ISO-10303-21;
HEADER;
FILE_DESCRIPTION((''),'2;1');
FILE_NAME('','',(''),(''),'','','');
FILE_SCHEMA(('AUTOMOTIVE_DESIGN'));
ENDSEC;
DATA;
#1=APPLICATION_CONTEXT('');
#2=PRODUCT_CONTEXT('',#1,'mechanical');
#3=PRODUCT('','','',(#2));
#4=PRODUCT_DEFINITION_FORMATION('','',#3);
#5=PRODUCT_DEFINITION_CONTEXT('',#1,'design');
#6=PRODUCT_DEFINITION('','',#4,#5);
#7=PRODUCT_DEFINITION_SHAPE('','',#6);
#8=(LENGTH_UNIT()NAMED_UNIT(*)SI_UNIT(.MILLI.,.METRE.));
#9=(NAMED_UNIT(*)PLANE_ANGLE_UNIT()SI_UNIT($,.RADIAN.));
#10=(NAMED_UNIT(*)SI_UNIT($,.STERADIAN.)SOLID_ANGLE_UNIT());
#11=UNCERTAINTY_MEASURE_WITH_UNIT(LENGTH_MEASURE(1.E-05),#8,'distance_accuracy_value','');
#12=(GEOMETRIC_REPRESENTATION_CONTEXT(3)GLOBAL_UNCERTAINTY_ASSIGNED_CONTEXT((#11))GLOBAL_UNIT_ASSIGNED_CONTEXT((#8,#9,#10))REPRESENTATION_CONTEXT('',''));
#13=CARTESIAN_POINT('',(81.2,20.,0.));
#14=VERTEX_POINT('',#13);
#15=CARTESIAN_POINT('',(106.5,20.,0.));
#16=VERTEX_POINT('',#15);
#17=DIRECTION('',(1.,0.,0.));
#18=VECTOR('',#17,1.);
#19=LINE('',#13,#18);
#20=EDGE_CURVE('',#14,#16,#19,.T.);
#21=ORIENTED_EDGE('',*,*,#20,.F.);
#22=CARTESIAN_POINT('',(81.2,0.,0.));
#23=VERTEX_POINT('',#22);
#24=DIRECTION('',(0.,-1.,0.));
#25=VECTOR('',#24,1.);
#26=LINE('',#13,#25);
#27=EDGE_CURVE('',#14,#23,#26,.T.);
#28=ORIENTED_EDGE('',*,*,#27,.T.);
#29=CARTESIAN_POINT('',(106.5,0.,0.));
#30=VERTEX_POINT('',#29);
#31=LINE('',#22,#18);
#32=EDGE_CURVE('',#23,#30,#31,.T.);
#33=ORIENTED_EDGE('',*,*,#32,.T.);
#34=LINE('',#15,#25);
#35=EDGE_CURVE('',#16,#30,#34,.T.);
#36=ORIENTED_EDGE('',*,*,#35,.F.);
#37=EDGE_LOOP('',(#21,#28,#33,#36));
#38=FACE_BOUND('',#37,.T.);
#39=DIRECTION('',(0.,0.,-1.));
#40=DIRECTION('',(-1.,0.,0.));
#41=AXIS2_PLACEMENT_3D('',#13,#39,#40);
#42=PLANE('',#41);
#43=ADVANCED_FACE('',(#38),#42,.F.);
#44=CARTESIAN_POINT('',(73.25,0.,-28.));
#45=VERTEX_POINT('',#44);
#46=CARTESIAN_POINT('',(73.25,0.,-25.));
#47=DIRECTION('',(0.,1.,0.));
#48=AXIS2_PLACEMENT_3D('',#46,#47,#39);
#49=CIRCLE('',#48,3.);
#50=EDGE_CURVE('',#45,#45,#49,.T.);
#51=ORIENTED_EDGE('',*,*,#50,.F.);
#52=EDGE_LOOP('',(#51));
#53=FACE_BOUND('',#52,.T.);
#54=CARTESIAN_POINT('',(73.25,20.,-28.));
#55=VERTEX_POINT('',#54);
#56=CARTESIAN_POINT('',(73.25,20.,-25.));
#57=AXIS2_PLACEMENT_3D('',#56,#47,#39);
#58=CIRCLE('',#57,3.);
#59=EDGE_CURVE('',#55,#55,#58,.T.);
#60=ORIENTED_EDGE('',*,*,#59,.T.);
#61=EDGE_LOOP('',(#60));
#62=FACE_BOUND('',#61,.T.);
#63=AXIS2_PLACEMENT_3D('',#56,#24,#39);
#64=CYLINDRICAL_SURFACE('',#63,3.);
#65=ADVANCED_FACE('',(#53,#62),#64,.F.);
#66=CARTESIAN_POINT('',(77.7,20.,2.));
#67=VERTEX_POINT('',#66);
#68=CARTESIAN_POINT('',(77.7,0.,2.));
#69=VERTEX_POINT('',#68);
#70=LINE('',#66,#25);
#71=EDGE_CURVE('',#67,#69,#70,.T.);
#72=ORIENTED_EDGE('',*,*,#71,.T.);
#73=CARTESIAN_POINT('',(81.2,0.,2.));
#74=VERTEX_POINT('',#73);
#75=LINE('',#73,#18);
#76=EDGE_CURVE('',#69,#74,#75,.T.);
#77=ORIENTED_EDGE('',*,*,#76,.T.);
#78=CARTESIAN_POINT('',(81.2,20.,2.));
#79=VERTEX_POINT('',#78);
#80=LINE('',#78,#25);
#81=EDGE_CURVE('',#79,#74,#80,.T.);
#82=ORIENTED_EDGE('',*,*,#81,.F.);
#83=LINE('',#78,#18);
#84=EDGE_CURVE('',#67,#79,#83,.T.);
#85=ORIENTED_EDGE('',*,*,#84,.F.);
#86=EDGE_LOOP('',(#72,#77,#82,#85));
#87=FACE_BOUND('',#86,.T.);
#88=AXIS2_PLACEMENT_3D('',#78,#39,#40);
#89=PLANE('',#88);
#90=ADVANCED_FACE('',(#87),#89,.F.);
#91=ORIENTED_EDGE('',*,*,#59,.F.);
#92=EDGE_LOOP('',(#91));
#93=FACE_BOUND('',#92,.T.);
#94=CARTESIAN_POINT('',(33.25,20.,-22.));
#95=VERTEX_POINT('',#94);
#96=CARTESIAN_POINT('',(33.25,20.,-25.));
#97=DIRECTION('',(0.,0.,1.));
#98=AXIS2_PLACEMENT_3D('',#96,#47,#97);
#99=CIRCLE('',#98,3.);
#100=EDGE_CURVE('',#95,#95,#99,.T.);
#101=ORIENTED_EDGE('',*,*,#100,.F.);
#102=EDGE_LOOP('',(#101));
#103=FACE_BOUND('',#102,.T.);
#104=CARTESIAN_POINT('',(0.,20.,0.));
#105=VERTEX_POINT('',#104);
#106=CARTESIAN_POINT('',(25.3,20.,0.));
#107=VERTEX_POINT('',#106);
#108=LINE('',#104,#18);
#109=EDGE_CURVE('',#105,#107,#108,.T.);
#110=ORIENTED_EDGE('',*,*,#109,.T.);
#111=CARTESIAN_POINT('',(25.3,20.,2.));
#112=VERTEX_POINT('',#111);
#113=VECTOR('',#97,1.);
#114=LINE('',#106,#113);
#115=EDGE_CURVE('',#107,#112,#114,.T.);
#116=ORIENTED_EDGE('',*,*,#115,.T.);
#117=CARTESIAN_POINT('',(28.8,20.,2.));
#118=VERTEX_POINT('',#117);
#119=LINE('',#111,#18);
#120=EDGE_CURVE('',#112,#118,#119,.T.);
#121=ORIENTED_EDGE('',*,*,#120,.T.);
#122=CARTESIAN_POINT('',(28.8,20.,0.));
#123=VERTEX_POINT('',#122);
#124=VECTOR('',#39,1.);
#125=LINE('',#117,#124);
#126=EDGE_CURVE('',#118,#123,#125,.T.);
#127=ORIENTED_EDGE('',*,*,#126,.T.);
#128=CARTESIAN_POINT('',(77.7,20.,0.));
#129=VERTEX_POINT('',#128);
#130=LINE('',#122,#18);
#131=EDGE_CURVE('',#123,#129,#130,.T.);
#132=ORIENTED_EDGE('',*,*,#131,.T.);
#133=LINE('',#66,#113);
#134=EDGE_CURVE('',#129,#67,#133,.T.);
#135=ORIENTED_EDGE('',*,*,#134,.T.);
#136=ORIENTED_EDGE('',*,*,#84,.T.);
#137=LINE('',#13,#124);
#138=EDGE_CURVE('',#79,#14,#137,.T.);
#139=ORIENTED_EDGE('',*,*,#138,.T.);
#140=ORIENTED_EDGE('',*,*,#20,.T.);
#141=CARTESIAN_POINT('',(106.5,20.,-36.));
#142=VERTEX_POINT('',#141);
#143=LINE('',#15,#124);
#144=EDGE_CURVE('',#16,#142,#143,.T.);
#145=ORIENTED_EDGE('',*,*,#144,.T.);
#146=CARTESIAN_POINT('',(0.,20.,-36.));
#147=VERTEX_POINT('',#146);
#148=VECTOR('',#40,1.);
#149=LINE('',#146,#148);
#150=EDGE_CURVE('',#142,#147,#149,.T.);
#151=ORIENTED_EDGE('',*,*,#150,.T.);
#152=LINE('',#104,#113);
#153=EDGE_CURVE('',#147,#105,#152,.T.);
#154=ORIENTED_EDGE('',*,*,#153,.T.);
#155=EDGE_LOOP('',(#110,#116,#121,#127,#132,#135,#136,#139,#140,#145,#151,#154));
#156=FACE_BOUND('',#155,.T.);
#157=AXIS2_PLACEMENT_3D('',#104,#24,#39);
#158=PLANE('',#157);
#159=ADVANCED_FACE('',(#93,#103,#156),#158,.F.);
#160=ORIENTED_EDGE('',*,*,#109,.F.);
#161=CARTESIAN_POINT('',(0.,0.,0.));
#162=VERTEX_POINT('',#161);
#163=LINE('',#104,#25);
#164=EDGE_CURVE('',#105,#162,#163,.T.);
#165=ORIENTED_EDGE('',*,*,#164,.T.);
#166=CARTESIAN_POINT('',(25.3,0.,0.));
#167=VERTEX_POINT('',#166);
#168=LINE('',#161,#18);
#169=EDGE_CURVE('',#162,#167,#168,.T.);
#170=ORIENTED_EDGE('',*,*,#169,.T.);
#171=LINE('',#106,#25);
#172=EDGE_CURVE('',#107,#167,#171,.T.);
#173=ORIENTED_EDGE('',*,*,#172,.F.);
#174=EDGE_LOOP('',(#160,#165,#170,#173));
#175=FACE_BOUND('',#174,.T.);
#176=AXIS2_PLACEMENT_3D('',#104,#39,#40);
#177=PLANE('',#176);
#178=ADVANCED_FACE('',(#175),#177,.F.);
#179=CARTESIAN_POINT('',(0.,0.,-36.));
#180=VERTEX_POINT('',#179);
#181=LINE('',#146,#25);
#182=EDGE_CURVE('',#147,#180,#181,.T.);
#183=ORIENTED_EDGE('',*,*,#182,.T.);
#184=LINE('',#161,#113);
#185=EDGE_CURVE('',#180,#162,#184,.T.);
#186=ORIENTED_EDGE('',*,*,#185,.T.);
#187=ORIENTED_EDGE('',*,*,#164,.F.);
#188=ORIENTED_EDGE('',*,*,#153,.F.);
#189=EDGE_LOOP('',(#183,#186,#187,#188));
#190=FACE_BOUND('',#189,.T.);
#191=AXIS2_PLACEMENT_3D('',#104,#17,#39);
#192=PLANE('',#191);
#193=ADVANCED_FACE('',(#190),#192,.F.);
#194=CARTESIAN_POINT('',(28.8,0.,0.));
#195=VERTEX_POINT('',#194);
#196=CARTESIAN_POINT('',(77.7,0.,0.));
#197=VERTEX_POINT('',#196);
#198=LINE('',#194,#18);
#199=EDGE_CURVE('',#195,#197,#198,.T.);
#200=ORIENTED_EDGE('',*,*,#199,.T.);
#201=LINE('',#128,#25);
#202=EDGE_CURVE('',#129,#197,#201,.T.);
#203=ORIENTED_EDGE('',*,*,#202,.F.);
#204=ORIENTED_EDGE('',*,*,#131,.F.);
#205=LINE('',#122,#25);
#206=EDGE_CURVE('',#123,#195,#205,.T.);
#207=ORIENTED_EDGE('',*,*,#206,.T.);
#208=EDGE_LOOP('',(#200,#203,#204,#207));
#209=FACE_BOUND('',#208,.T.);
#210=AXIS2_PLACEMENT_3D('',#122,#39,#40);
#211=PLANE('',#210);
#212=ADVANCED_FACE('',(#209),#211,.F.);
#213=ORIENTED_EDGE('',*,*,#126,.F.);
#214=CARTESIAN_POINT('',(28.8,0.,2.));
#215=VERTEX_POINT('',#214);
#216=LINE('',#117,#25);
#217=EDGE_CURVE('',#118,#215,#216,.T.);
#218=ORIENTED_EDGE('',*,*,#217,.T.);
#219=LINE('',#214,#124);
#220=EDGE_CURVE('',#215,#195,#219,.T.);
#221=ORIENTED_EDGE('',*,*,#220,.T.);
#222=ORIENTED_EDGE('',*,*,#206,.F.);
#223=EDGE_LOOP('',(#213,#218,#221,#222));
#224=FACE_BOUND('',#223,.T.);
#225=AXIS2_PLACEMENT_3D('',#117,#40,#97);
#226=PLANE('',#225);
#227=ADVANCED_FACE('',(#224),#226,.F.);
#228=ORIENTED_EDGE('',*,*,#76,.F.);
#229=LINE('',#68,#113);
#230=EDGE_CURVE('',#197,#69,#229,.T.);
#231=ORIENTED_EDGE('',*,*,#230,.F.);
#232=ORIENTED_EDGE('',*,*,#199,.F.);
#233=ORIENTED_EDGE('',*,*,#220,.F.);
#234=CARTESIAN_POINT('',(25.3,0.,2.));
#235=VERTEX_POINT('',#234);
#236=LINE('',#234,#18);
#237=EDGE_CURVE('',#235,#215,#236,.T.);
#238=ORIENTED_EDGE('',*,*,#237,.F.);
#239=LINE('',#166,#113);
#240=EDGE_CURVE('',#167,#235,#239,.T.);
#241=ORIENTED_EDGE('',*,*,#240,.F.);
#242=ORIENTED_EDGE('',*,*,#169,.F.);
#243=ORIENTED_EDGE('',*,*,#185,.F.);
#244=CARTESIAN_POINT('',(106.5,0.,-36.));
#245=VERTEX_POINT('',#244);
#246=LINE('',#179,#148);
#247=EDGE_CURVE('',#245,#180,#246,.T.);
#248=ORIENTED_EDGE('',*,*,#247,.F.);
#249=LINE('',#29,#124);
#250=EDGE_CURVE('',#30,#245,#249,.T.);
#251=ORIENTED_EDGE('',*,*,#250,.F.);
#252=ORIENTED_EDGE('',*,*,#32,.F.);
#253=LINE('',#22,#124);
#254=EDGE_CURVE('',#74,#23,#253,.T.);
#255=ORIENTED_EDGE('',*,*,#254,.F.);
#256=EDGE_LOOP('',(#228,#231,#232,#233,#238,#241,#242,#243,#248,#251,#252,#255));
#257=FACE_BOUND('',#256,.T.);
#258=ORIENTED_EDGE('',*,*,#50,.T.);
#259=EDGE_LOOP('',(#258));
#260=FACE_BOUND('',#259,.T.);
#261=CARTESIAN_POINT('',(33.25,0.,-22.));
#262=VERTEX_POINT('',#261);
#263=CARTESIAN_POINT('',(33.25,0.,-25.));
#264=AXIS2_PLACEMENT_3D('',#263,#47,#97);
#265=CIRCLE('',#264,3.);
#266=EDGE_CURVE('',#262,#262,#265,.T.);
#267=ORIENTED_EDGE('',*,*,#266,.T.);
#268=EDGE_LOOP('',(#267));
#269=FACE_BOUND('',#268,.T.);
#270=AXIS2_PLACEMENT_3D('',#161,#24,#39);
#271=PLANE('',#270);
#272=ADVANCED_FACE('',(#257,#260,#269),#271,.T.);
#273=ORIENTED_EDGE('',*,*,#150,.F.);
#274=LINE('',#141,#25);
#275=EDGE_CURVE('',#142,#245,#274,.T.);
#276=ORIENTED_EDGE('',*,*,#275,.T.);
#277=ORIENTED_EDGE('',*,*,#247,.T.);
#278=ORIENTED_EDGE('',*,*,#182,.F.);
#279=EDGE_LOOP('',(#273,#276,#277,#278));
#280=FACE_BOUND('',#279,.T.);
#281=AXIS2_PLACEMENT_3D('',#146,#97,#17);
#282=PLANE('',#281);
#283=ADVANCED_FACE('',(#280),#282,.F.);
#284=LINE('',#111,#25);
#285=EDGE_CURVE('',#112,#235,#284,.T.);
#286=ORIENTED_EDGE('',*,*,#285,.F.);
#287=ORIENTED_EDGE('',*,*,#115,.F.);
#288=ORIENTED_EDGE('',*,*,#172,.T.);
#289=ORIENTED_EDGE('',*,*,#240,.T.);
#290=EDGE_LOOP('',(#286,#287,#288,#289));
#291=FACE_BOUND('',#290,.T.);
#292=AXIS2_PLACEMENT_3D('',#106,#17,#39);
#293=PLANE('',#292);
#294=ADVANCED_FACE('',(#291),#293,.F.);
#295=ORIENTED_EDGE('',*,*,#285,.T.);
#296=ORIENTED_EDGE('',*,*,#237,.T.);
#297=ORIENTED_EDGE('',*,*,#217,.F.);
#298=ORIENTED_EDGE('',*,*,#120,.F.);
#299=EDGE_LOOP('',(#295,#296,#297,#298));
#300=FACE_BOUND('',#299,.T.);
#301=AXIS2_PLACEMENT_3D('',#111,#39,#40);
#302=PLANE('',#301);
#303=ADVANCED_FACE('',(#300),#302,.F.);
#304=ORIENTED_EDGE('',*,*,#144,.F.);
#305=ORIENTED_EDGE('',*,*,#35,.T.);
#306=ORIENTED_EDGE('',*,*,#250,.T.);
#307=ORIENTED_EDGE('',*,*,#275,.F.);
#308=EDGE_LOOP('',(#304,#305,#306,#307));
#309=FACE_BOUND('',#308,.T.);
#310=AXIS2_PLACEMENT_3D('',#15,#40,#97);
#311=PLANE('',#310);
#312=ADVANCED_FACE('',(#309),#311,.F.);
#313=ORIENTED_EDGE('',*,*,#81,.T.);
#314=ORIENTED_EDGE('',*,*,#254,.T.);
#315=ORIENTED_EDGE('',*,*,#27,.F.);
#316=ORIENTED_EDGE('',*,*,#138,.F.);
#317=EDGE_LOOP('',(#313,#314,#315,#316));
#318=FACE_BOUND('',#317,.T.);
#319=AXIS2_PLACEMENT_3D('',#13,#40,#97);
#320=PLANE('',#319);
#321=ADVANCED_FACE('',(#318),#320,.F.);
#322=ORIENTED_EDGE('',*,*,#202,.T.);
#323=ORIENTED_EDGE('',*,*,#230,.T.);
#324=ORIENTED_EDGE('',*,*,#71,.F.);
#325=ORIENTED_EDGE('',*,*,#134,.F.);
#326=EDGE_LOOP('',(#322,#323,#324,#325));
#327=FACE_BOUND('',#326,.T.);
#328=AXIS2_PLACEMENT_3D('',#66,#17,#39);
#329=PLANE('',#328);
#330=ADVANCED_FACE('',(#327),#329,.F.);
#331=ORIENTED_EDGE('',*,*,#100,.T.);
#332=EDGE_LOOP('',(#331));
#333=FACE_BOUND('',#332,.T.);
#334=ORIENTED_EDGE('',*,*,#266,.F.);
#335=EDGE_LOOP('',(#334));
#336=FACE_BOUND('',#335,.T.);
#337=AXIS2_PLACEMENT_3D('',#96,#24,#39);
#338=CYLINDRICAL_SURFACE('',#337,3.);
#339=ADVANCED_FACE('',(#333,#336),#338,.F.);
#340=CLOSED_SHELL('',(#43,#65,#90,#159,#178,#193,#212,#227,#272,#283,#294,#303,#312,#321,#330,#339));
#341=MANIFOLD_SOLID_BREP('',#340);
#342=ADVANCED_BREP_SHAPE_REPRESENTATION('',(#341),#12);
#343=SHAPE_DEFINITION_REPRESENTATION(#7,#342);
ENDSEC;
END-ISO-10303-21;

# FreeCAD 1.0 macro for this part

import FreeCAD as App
import Part
import Sketcher
from FreeCAD import Vector

doc = App.newDocument("Part")
body = doc.addObject("PartDesign::Body", "Body")

# Sketch on XZ plane
sketch1 = body.newObject("Sketcher::SketchObject", "Sketch")
sketch1.AttachmentSupport = (doc.getObject("XZ_Plane"), [""])
sketch1.MapMode = "FlatFace"
sketch1.addGeometry([
    Part.LineSegment(Vector(0, 0, 0), Vector(25.3, 0, 0)),  # 0
    Part.LineSegment(Vector(25.3, 0, 0), Vector(25.3, 2, 0)),  # 1
    Part.LineSegment(Vector(25.3, 2, 0), Vector(28.8, 2, 0)),  # 2
    Part.LineSegment(Vector(28.8, 2, 0), Vector(28.8, 0, 0)),  # 3
    Part.LineSegment(Vector(28.8, 0, 0), Vector(77.7, 0, 0)),  # 4
    Part.LineSegment(Vector(77.7, 0, 0), Vector(77.7, 2, 0)),  # 5
    Part.LineSegment(Vector(77.7, 2, 0), Vector(81.2, 2, 0)),  # 6
    Part.LineSegment(Vector(81.2, 2, 0), Vector(81.2, 0, 0)),  # 7
    Part.LineSegment(Vector(81.2, 0, 0), Vector(106.5, 0, 0)),  # 8
    Part.LineSegment(Vector(106.5, 0, 0), Vector(106.5, -36, 0)),  # 9
    Part.LineSegment(Vector(106.5, -36, 0), Vector(0, -36, 0)),  # 10
    Part.LineSegment(Vector(0, -36, 0), Vector(0, 0, 0)),  # 11
    Part.Circle(Vector(33.25, -25, 0), Vector(0, 0, 1), 3),  # 12
    Part.Circle(Vector(73.25, -25, 0), Vector(0, 0, 1), 3),  # 13
], False)
sketch1.addConstraint([
    Sketcher.Constraint("Coincident", 0, 2, 1, 1),
    Sketcher.Constraint("Coincident", 1, 2, 2, 1),
    Sketcher.Constraint("Coincident", 2, 2, 3, 1),
    Sketcher.Constraint("Coincident", 3, 2, 4, 1),
    Sketcher.Constraint("Coincident", 4, 2, 5, 1),
    Sketcher.Constraint("Coincident", 5, 2, 6, 1),
    Sketcher.Constraint("Coincident", 6, 2, 7, 1),
    Sketcher.Constraint("Coincident", 7, 2, 8, 1),
    Sketcher.Constraint("Coincident", 8, 2, 9, 1),
    Sketcher.Constraint("Coincident", 9, 2, 10, 1),
    Sketcher.Constraint("Coincident", 10, 2, 11, 1),
    Sketcher.Constraint("Coincident", 11, 2, 0, 1),
    Sketcher.Constraint("Horizontal", 0),
    Sketcher.Constraint("Vertical", 1),
    Sketcher.Constraint("Horizontal", 2),
    Sketcher.Constraint("Vertical", 3),
    Sketcher.Constraint("Horizontal", 4),
    Sketcher.Constraint("Vertical", 5),
    Sketcher.Constraint("Horizontal", 6),
    Sketcher.Constraint("Vertical", 7),
    Sketcher.Constraint("Horizontal", 8),
    Sketcher.Constraint("Vertical", 9),
    Sketcher.Constraint("Horizontal", 10),
    Sketcher.Constraint("Vertical", 11),
    Sketcher.Constraint("Coincident", 11, 2, -1, 1),
    Sketcher.Constraint("Equal", 12, 13),
    Sketcher.Constraint("PointOnObject", 3, 2, -1),
    Sketcher.Constraint("PointOnObject", 7, 2, -1),
    Sketcher.Constraint("Horizontal", 12, 3, 13, 3),
    Sketcher.Constraint("Horizontal", 2, 2, 5, 2),
    Sketcher.Constraint("Equal", 2, 6),
    Sketcher.Constraint("Equal", 0, 8),
    Sketcher.Constraint("Diameter", 12, 6.0),
    Sketcher.Constraint("DistanceY", 1, 1, 1, 2, 2.0),
    Sketcher.Constraint("DistanceY", 9, 2, 9, 1, 36.0),
    Sketcher.Constraint("DistanceX", 0, 1, 0, 2, 25.3),
    Sketcher.Constraint("DistanceX", 2, 1, 2, 2, 3.5),
    Sketcher.Constraint("DistanceX", 4, 1, 4, 2, 48.9),
    Sketcher.Constraint("DistanceY", 12, 3, -1, 1, 25.0),
    Sketcher.Constraint("DistanceX", 12, 3, 13, 3, 40.0),
    Sketcher.Constraint("DistanceX", -1, 1, 12, 3, 33.25),
])
pad1 = body.newObject("PartDesign::Pad", "Pad")
pad1.Profile = sketch1
pad1.Length = 20
pad1.Reversed = True

doc.recompute()
